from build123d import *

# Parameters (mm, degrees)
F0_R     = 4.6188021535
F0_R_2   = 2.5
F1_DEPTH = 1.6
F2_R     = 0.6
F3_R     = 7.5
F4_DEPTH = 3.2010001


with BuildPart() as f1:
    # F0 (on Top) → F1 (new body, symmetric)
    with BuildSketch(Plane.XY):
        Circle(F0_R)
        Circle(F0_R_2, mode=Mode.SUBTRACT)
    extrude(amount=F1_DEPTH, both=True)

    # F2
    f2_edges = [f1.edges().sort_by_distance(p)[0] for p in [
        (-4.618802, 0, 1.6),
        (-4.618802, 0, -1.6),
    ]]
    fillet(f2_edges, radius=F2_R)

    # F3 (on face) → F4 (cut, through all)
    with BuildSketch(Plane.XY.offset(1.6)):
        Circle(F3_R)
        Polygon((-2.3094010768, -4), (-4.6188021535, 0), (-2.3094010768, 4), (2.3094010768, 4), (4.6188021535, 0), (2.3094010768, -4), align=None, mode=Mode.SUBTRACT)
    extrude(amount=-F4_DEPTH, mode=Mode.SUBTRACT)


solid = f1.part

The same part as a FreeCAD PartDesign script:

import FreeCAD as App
import Part
import Sketcher
from FreeCAD import Vector
Q = App.Units.Quantity


def edges_at(feature, points):
    """Names of the edges that pass closest to the given points."""
    edges = feature.Shape.Edges
    near = lambda p: min(range(len(edges)), key=lambda i: edges[i].distToShape(Part.Vertex(*p))[0])
    return sorted({f"Edge{near(p) + 1}" for p in points})

doc = App.newDocument("Part")
body = doc.addObject("PartDesign::Body", "Body")

# Sketch on XY plane
sketch1 = body.newObject("Sketcher::SketchObject", "Sketch")
sketch1.AttachmentSupport = (doc.getObject("XY_Plane"), [""])
sketch1.MapMode = "FlatFace"
sketch1.addGeometry([
    Part.Circle(Vector(0, 0, 0), Vector(0, 0, 1), 4.6),
    Part.Circle(Vector(0, 0, 0), Vector(0, 0, 1), 2.5),
], False)
sketch1.addConstraint([
    Sketcher.Constraint("Coincident", 0, 3, -1, 1),
    Sketcher.Constraint("Coincident", 1, 3, -1, 1),
    Sketcher.Constraint("Diameter", 1, 5.0),
    Sketcher.Constraint("Diameter", 0, 9.237604),
])
pad1 = body.newObject("PartDesign::Pad", "Pad")
pad1.Profile = sketch1
pad1.Length = 3.2
pad1.Midplane = True
doc.recompute()

fillet = body.newObject("PartDesign::Fillet", "Fillet")
fillet.Base = (pad1, edges_at(pad1, [(-4.619, 0, 1.6), (-4.619, 0, -1.6)]))
fillet.Radius = 0.6

# Sketch on XY plane
sketch2 = body.newObject("Sketcher::SketchObject", "Sketch001")
sketch2.AttachmentSupport = (doc.getObject("XY_Plane"), [""])
sketch2.MapMode = "FlatFace"
sketch2.AttachmentOffset = App.Placement(Vector(0, 0, 1.6), App.Rotation())
sketch2.addGeometry([
    Part.Circle(Vector(0, 0, 0), Vector(0, 0, 1), 7.5),  # 0
    Part.LineSegment(Vector(2.3, -4, 0), Vector(-2.3, -4, 0)),  # 1
    Part.LineSegment(Vector(-2.3, -4, 0), Vector(-4.6, 0, 0)),  # 2
    Part.LineSegment(Vector(-4.6, 0, 0), Vector(-2.3, 4, 0)),  # 3
    Part.LineSegment(Vector(-2.3, 4, 0), Vector(2.3, 4, 0)),  # 4
    Part.LineSegment(Vector(2.3, 4, 0), Vector(4.6, 0, 0)),  # 5
    Part.LineSegment(Vector(4.6, 0, 0), Vector(2.3, -4, 0)),  # 6
], False)
sketch2.addConstraint([
    Sketcher.Constraint("Coincident", 1, 2, 2, 1),
    Sketcher.Constraint("Coincident", 2, 2, 3, 1),
    Sketcher.Constraint("Coincident", 3, 2, 4, 1),
    Sketcher.Constraint("Coincident", 4, 2, 5, 1),
    Sketcher.Constraint("Coincident", 5, 2, 6, 1),
    Sketcher.Constraint("Coincident", 6, 2, 1, 1),
    Sketcher.Constraint("Horizontal", 1),
    Sketcher.Constraint("Horizontal", 4),
    Sketcher.Constraint("Coincident", 0, 3, -1, 1),
    Sketcher.Constraint("Symmetric", 1, 2, 4, 2, -1, 1),
    Sketcher.Constraint("Symmetric", 2, 2, 5, 2, -1, 1),
    Sketcher.Constraint("PointOnObject", 2, 2, -1),
    Sketcher.Constraint("Parallel", 3, 6),
    Sketcher.Constraint("Vertical", 1, 2, 3, 2),
    Sketcher.Constraint("Diameter", 0, 15.0),
    Sketcher.Constraint("Angle", 2, Q("120 deg")),
    Sketcher.Constraint("DistanceY", 1, 2, -1, 1, 4.0),
    Sketcher.Constraint("DistanceX", 1, 2, -1, 1, 2.309401),
])
pocket1 = body.newObject("PartDesign::Pocket", "Pocket")
pocket1.Profile = sketch2
pocket1.Type = "ThroughAll"

doc.recompute()
